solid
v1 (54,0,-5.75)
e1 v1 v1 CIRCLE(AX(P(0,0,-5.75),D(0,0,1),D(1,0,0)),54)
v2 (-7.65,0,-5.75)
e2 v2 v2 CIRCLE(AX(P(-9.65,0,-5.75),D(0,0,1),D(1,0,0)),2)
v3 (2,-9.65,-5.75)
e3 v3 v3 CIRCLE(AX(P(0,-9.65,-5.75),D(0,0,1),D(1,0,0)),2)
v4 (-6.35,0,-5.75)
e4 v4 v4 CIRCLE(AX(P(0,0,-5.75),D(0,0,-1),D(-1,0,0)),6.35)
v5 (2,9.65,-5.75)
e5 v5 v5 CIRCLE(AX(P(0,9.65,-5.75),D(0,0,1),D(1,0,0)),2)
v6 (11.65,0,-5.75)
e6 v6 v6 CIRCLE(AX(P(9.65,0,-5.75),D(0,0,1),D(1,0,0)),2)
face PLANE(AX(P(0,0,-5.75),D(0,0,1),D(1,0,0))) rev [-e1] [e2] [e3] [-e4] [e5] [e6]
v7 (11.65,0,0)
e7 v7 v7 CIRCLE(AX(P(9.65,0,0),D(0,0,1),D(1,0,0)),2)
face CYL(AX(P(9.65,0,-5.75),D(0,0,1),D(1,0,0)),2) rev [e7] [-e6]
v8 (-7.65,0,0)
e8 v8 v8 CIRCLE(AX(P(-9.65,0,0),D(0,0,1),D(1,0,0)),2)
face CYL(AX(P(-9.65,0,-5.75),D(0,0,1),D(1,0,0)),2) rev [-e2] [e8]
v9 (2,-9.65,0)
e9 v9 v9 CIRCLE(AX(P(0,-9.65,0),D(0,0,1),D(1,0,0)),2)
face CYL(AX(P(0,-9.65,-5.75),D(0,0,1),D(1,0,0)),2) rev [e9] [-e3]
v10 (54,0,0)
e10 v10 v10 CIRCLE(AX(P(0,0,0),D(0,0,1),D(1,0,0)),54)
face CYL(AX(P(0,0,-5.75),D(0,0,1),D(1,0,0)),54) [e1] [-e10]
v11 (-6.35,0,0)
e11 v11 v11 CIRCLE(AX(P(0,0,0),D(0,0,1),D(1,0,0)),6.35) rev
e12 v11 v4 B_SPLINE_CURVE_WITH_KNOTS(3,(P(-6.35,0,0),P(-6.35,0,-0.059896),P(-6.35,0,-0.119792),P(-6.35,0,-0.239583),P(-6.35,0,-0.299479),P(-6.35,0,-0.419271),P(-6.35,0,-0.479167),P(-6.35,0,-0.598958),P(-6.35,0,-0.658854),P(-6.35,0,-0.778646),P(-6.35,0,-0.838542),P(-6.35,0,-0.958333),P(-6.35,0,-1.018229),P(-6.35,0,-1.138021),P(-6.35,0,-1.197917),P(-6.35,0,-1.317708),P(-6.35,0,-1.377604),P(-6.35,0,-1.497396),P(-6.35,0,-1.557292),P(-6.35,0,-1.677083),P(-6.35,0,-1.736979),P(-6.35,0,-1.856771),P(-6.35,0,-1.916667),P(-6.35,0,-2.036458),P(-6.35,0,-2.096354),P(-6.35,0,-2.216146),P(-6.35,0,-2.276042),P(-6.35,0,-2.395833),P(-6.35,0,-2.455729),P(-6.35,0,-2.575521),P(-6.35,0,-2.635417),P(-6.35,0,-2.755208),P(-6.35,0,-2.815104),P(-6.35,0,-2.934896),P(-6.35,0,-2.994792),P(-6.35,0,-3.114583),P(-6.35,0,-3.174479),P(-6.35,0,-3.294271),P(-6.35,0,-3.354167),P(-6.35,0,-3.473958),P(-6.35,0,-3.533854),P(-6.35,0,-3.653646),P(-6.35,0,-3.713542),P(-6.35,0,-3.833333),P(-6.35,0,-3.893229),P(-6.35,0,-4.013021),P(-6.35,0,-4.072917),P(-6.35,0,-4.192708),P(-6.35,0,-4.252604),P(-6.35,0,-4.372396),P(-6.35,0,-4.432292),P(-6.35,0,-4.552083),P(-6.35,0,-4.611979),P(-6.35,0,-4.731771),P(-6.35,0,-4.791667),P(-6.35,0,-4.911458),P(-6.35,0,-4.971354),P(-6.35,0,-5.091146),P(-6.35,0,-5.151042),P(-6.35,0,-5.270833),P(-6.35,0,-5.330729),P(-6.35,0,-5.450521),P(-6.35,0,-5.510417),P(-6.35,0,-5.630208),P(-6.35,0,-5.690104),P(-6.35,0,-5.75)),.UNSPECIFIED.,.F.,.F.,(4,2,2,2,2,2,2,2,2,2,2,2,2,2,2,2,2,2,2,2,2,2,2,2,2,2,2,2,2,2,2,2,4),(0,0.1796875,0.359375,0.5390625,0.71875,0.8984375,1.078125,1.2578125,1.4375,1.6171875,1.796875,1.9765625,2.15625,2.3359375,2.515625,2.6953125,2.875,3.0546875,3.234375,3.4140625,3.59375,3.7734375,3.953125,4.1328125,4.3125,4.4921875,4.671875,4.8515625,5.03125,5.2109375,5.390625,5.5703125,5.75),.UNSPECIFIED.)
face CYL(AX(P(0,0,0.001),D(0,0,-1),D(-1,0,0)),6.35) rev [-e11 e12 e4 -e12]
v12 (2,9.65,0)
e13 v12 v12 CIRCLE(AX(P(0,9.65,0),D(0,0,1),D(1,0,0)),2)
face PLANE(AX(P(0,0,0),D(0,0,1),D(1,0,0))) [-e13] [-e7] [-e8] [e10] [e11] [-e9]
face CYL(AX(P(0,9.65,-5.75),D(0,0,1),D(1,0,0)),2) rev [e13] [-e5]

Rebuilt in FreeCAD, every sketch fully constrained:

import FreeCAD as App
import Part
import Sketcher
from FreeCAD import Vector
Q = App.Units.Quantity

doc = App.newDocument("Part")
body = doc.addObject("PartDesign::Body", "Body")

sketch1 = body.newObject("Sketcher::SketchObject", "Sketch")
sketch1.AttachmentSupport = (doc.getObject("XY_Plane"), [""])
sketch1.MapMode = "FlatFace"
sketch1.addGeometry([
    Part.Circle(Vector(0, 0, 0), Vector(0, 0, 1), 54),
    Part.Circle(Vector(0, -9.7, 0), Vector(0, 0, 1), 2),
    Part.Circle(Vector(-9.7, 0, 0), Vector(0, 0, 1), 2),
    Part.Circle(Vector(0, 0, 0), Vector(0, 0, 1), 3.2),
    Part.Circle(Vector(9.7, 0, 0), Vector(0, 0, 1), 2),
    Part.Circle(Vector(0, 9.7, 0), Vector(0, 0, 1), 2),
], False)
sketch1.addConstraint([
    Sketcher.Constraint("Coincident", 0, 3, -1, 1),
    Sketcher.Constraint("Coincident", 3, 3, -1, 1),
    Sketcher.Constraint("Equal", 1, 2),
    Sketcher.Constraint("Equal", 2, 4),
    Sketcher.Constraint("Equal", 4, 5),
    Sketcher.Constraint("Symmetric", 2, 3, 4, 3, -1, 1),
    Sketcher.Constraint("Symmetric", 1, 3, 5, 3, -1, 1),
    Sketcher.Constraint("PointOnObject", 1, 3, -2),
    Sketcher.Constraint("PointOnObject", 2, 3, -1),
    Sketcher.Constraint("Diameter", 0, Q("108 mm")),
    Sketcher.Constraint("Diameter", 1, Q("4 mm")),
    Sketcher.Constraint("Diameter", 3, Q("6.35 mm")),
    Sketcher.Constraint("DistanceX", 2, 3, 4, 3, Q("19.3 mm")),
    Sketcher.Constraint("DistanceY", 1, 3, 5, 3, Q("19.3 mm")),
])
pad1 = body.newObject("PartDesign::Pad", "Pad")
pad1.Profile = sketch1
pad1.Length = 5.75
pad1.Reversed = True

sketch2 = body.newObject("Sketcher::SketchObject", "Sketch001")
sketch2.AttachmentSupport = (doc.getObject("XY_Plane"), [""])
sketch2.MapMode = "FlatFace"
sketch2.AttachmentOffset = App.Placement(Vector(0, 0, -5.75), App.Rotation())
sketch2.addGeometry(Part.Circle(Vector(0, 0, 0), Vector(0, 0, 1), 6), False)
sketch2.addConstraint([
    Sketcher.Constraint("Coincident", 0, 3, -1, 1),
    Sketcher.Constraint("Diameter", 0, Q("12.7 mm")),
])
pocket1 = body.newObject("PartDesign::Pocket", "Pocket")
pocket1.Profile = sketch2
pocket1.Length = 5.75
pocket1.Reversed = True

doc.recompute()
